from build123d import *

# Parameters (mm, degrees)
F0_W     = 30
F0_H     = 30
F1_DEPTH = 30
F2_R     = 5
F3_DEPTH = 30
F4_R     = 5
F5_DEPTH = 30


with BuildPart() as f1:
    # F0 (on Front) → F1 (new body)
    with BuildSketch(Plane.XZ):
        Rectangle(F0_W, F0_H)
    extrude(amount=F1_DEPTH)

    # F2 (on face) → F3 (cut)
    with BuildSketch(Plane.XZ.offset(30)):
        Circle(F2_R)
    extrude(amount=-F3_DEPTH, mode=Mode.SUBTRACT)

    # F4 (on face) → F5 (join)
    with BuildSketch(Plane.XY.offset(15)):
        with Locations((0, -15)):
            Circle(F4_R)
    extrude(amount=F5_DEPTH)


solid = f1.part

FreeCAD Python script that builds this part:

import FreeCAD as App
import Part
import Sketcher
Q = App.Units.Quantity

doc = App.newDocument("Part")
body = doc.addObject("PartDesign::Body", "Body")

# Sketch on XZ plane
sketch1 = body.newObject("Sketcher::SketchObject", "Sketch")
sketch1.AttachmentSupport = (doc.getObject("XZ_Plane"), [""])
sketch1.MapMode = "FlatFace"
sketch1.addGeometry([
    Part.LineSegment(App.Vector(-15, 15, 0), App.Vector(-15, -15, 0)),
    Part.LineSegment(App.Vector(-15, -15, 0), App.Vector(15, -15, 0)),
    Part.LineSegment(App.Vector(15, -15, 0), App.Vector(15, 15, 0)),
    Part.LineSegment(App.Vector(15, 15, 0), App.Vector(-15, 15, 0)),
], False)
sketch1.addConstraint([
    Sketcher.Constraint("Coincident", 0, 2, 1, 1),
    Sketcher.Constraint("Coincident", 1, 2, 2, 1),
    Sketcher.Constraint("Coincident", 2, 2, 3, 1),
    Sketcher.Constraint("Coincident", 3, 2, 0, 1),
    Sketcher.Constraint("Vertical", 0),
    Sketcher.Constraint("Horizontal", 1),
    Sketcher.Constraint("Vertical", 2),
    Sketcher.Constraint("Horizontal", 3),
    Sketcher.Constraint("Symmetric", 0, 2, 2, 2, -1, 1),
    Sketcher.Constraint("Equal", 3, 0),
    Sketcher.Constraint("DistanceX", 1, 1, 1, 2, Q("30 mm")),
])
pad1 = body.newObject("PartDesign::Pad", "Pad")
pad1.Profile = sketch1
pad1.Length = 30

# Sketch on XZ plane
sketch2 = body.newObject("Sketcher::SketchObject", "Sketch001")
sketch2.AttachmentSupport = (doc.getObject("XZ_Plane"), [""])
sketch2.MapMode = "FlatFace"
sketch2.AttachmentOffset = App.Placement(App.Vector(0, 0, 30), App.Rotation())
sketch2.addGeometry(Part.Circle(App.Vector(0, 0, 0), App.Vector(0, 0, 1), 5), False)
sketch2.addConstraint([
    Sketcher.Constraint("Coincident", 0, 3, -1, 1),
    Sketcher.Constraint("Diameter", 0, Q("10 mm")),
])
pocket1 = body.newObject("PartDesign::Pocket", "Pocket")
pocket1.Profile = sketch2
pocket1.Length = 30

# Sketch on XY plane
sketch3 = body.newObject("Sketcher::SketchObject", "Sketch002")
sketch3.AttachmentSupport = (doc.getObject("XY_Plane"), [""])
sketch3.MapMode = "FlatFace"
sketch3.AttachmentOffset = App.Placement(App.Vector(0, 0, 15), App.Rotation())
sketch3.addGeometry(Part.Circle(App.Vector(0, -15, 0), App.Vector(0, 0, 1), 5), False)
sketch3.addConstraint([
    Sketcher.Constraint("PointOnObject", 0, 3, -2),
    Sketcher.Constraint("Diameter", 0, Q("10 mm")),
    Sketcher.Constraint("DistanceY", 0, 3, -1, 1, Q("15 mm")),
])
pad2 = body.newObject("PartDesign::Pad", "Pad001")
pad2.Profile = sketch3
pad2.Length = 30

doc.recompute()
